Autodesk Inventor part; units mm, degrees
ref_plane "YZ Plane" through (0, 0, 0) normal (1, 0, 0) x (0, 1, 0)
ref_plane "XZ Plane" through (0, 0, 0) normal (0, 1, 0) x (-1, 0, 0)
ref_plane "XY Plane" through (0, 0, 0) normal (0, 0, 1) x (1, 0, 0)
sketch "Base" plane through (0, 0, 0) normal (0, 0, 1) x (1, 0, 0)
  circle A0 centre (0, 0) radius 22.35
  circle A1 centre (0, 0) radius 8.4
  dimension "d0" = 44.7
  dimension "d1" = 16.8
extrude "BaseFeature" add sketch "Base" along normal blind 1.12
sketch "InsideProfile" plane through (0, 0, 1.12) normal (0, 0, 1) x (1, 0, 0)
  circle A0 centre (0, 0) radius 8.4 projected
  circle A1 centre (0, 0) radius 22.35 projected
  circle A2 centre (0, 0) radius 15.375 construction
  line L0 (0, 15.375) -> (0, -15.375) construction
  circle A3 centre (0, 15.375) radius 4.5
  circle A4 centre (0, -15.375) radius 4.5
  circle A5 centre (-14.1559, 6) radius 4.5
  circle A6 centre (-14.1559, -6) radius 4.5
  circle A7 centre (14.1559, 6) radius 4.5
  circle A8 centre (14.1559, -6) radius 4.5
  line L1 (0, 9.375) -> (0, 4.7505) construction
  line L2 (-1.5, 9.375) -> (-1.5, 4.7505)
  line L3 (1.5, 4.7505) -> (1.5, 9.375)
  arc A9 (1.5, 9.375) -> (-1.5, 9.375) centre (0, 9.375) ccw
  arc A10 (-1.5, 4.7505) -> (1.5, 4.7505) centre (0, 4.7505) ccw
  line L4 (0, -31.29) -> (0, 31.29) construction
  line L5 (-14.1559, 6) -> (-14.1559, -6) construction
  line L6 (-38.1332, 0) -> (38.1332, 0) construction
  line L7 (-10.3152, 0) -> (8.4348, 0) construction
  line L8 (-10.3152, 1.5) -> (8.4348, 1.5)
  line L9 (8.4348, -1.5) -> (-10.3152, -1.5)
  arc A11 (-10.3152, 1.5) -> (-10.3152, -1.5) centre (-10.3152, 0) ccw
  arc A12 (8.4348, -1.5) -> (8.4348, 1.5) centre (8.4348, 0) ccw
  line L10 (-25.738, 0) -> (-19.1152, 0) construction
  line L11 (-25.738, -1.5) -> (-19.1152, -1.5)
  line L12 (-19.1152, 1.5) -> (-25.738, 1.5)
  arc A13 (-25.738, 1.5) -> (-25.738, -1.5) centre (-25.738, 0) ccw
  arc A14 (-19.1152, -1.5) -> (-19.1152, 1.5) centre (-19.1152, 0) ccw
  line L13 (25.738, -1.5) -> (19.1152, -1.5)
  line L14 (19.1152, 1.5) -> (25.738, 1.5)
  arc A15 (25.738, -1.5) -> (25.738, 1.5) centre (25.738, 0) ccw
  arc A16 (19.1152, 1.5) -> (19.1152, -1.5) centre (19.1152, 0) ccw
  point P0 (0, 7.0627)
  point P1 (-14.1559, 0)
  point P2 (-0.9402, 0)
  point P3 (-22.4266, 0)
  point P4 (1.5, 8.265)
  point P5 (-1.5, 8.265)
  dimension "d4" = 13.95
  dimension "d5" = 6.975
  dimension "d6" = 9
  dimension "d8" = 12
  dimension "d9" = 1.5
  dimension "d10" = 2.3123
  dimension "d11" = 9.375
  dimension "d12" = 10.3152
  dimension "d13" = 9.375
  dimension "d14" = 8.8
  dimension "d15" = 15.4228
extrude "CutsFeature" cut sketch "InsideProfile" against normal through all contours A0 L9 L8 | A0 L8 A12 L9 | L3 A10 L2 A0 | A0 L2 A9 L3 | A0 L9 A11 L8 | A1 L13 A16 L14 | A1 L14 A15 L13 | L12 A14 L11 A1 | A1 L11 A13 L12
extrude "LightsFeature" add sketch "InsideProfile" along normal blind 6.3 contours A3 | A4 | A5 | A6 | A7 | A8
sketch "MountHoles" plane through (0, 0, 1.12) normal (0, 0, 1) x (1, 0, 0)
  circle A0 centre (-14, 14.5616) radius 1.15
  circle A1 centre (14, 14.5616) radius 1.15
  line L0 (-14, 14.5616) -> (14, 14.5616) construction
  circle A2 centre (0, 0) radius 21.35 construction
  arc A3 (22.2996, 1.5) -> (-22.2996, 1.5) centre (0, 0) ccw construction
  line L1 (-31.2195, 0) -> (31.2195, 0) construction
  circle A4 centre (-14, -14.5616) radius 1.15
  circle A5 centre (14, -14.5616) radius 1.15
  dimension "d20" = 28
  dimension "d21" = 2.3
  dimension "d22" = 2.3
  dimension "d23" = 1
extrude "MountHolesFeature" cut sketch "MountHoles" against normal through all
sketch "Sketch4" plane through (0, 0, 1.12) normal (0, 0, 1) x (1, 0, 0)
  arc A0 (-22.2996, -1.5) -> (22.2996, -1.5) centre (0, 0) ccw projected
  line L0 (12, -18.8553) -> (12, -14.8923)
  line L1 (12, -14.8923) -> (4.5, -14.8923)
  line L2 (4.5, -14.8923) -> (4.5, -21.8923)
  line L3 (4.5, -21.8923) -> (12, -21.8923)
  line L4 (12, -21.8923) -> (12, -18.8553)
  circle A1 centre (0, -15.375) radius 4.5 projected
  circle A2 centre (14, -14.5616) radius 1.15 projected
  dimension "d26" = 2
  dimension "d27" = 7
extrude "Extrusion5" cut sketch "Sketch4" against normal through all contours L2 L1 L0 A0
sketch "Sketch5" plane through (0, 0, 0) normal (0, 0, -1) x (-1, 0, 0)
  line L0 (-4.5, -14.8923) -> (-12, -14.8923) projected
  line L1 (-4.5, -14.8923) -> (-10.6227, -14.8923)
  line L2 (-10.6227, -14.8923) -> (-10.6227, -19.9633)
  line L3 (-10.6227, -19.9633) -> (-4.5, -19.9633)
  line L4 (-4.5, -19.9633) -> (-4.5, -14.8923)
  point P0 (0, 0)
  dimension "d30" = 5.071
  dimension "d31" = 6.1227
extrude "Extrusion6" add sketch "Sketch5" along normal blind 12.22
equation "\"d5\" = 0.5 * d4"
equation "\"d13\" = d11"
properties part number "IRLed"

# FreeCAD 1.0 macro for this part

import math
import FreeCAD as App
import Part
import Sketcher

V = App.Vector

doc = App.newDocument("Part")
body = doc.addObject("PartDesign::Body", "Body")
body.AllowCompound = True

# Sketch on XY plane
sketch1 = doc.addObject("Sketcher::SketchObject", "Sketch")
body.addObject(sketch1)
sketch1.AttachmentSupport = (doc.XY_Plane, [""])
sketch1.MapMode = "FlatFace"
sketch1.addGeometry([
    Part.Circle(V(0, 0, 0), V(0, 0, 1), 22),
    Part.Circle(V(0, 0, 0), V(0, 0, 1), 8),
], False)
sketch1.addConstraint([
    Sketcher.Constraint("Coincident", 0, 3, -1, 1),
    Sketcher.Constraint("Coincident", 1, 3, -1, 1),
    Sketcher.Constraint("Diameter", 0, 44.7),
    Sketcher.Constraint("Diameter", 1, 16.8),
])
pad1 = doc.addObject("PartDesign::Pad", "Pad")
body.addObject(pad1)
pad1.Profile = sketch1
pad1.Length = 1.12

# Sketch on XY plane
sketch2 = doc.addObject("Sketcher::SketchObject", "Sketch001")
body.addObject(sketch2)
sketch2.AttachmentSupport = (doc.XY_Plane, [""])
sketch2.MapMode = "FlatFace"
sketch2.AttachmentOffset = App.Placement(V(0, 0, 1.12), App.Rotation())
sketch2.addGeometry([
    Part.ArcOfCircle(Part.Circle(V(8.4, 0, 0), V(0, 0, 1), 1.5), math.radians(-90), math.radians(90)),  # 0
    Part.LineSegment(V(8.4, 1.5, 0), V(-10.3, 1.5, 0)),  # 1
    Part.ArcOfCircle(Part.Circle(V(-10.3, 0, 0), V(0, 0, 1), 1.5), math.radians(90), math.radians(270)),  # 2
    Part.LineSegment(V(-10.3, -1.5, 0), V(8.4, -1.5, 0)),  # 3
    Part.LineSegment(V(1.5, 4.8, 0), V(1.5, 9.4, 0)),  # 4
    Part.ArcOfCircle(Part.Circle(V(0, 9.4, 0), V(0, 0, 1), 1.5), math.radians(0), math.radians(180)),  # 5
    Part.LineSegment(V(-1.5, 9.4, 0), V(-1.5, 4.8, 0)),  # 6
    Part.ArcOfCircle(Part.Circle(V(0, 4.8, 0), V(0, 0, 1), 1.5), math.radians(180), math.radians(360)),  # 7
    Part.LineSegment(V(19.1, -1.5, 0), V(25.7, -1.5, 0)),  # 8
    Part.ArcOfCircle(Part.Circle(V(25.7, 0, 0), V(0, 0, 1), 1.5), math.radians(-90), math.radians(90)),  # 9
    Part.LineSegment(V(25.7, 1.5, 0), V(19.1, 1.5, 0)),  # 10
    Part.ArcOfCircle(Part.Circle(V(19.1, 0, 0), V(0, 0, 1), 1.5), math.radians(90), math.radians(270)),  # 11
    Part.LineSegment(V(-19.1, 1.5, 0), V(-25.7, 1.5, 0)),  # 12
    Part.ArcOfCircle(Part.Circle(V(-25.7, 0, 0), V(0, 0, 1), 1.5), math.radians(90), math.radians(270)),  # 13
    Part.LineSegment(V(-25.7, -1.5, 0), V(-19.1, -1.5, 0)),  # 14
    Part.ArcOfCircle(Part.Circle(V(-19.1, 0, 0), V(0, 0, 1), 1.5), math.radians(-90), math.radians(90)),  # 15
], False)
sketch2.addConstraint([
    Sketcher.Constraint("Tangent", 0, 2, 1, 1),
    Sketcher.Constraint("Tangent", 1, 2, 2, 1),
    Sketcher.Constraint("Tangent", 2, 2, 3, 1),
    Sketcher.Constraint("Tangent", 3, 2, 0, 1),
    Sketcher.Constraint("Tangent", 4, 2, 5, 1),
    Sketcher.Constraint("Tangent", 5, 2, 6, 1),
    Sketcher.Constraint("Tangent", 6, 2, 7, 1),
    Sketcher.Constraint("Tangent", 7, 2, 4, 1),
    Sketcher.Constraint("Tangent", 8, 2, 9, 1),
    Sketcher.Constraint("Tangent", 9, 2, 10, 1),
    Sketcher.Constraint("Tangent", 10, 2, 11, 1),
    Sketcher.Constraint("Tangent", 11, 2, 8, 1),
    Sketcher.Constraint("Tangent", 12, 2, 13, 1),
    Sketcher.Constraint("Tangent", 13, 2, 14, 1),
    Sketcher.Constraint("Tangent", 14, 2, 15, 1),
    Sketcher.Constraint("Tangent", 15, 2, 12, 1),
    Sketcher.Constraint("Horizontal", 1),
    Sketcher.Constraint("Horizontal", 3),
    Sketcher.Constraint("Vertical", 4),
    Sketcher.Constraint("Vertical", 6),
    Sketcher.Constraint("Horizontal", 8),
    Sketcher.Constraint("Horizontal", 10),
    Sketcher.Constraint("Horizontal", 12),
    Sketcher.Constraint("Horizontal", 14),
    Sketcher.Constraint("Equal", 2, 5),
    Sketcher.Constraint("Equal", 7, 9),
    Sketcher.Constraint("Equal", 11, 13),
    Sketcher.Constraint("Symmetric", 9, 3, 13, 3, -1, 1),
    Sketcher.Constraint("Symmetric", 11, 3, 15, 3, -2),
    Sketcher.Constraint("PointOnObject", 0, 3, -1),
    Sketcher.Constraint("PointOnObject", 5, 3, -2),
    Sketcher.Constraint("Radius", 0, 1.5),
    Sketcher.Constraint("DistanceX", 15, 3, 2, 3, 8.8),
    Sketcher.Constraint("DistanceY", -1, 1, 5, 3, 9.375),
    Sketcher.Constraint("DistanceX", 1, 2, 1, 1, 18.75),
    Sketcher.Constraint("DistanceX", 2, 3, -1, 1, 10.3152),
    Sketcher.Constraint("DistanceX", 13, 3, 2, 3, 15.4228),
    Sketcher.Constraint("DistanceY", 4, 1, 4, 2, 4.6245),
])
pocket1 = doc.addObject("PartDesign::Pocket", "Pocket")
body.addObject(pocket1)
pocket1.Profile = sketch2
pocket1.Type = "ThroughAll"

# Sketch on XY plane
sketch3 = doc.addObject("Sketcher::SketchObject", "Sketch002")
body.addObject(sketch3)
sketch3.AttachmentSupport = (doc.XY_Plane, [""])
sketch3.MapMode = "FlatFace"
sketch3.AttachmentOffset = App.Placement(V(0, 0, 1.12), App.Rotation())
sketch3.addGeometry([
    Part.Circle(V(0, 15.4, 0), V(0, 0, 1), 4.5),  # 0
    Part.Circle(V(0, -15.4, 0), V(0, 0, 1), 4.5),  # 1
    Part.Circle(V(-14.2, 6, 0), V(0, 0, 1), 4.5),  # 2
    Part.Circle(V(-14.2, -6, 0), V(0, 0, 1), 4.5),  # 3
    Part.Circle(V(14.2, 6, 0), V(0, 0, 1), 4.5),  # 4
    Part.Circle(V(14.2, -6, 0), V(0, 0, 1), 4.5),  # 5
], False)
sketch3.addConstraint([
    Sketcher.Constraint("Equal", 0, 1),
    Sketcher.Constraint("Equal", 1, 2),
    Sketcher.Constraint("Equal", 2, 3),
    Sketcher.Constraint("Equal", 3, 4),
    Sketcher.Constraint("Equal", 4, 5),
    Sketcher.Constraint("Symmetric", 0, 3, 1, 3, -1, 1),
    Sketcher.Constraint("Symmetric", 3, 3, 4, 3, -1, 1),
    Sketcher.Constraint("Symmetric", 2, 3, 5, 3, -1, 1),
    Sketcher.Constraint("Symmetric", 2, 3, 4, 3, -2),
    Sketcher.Constraint("PointOnObject", 0, 3, -2),
    Sketcher.Constraint("Diameter", 0, 9.0),
    Sketcher.Constraint("DistanceY", 3, 3, 2, 3, 12.0),
    Sketcher.Constraint("DistanceY", 2, 3, 0, 3, 9.375),
    Sketcher.Constraint("DistanceX", 2, 3, -1, 1, 14.156),
])
pad2 = doc.addObject("PartDesign::Pad", "Pad001")
body.addObject(pad2)
pad2.Profile = sketch3
pad2.Length = 6.3

# Sketch on XY plane
sketch4 = doc.addObject("Sketcher::SketchObject", "Sketch003")
body.addObject(sketch4)
sketch4.AttachmentSupport = (doc.XY_Plane, [""])
sketch4.MapMode = "FlatFace"
sketch4.AttachmentOffset = App.Placement(V(0, 0, 1.12), App.Rotation())
sketch4.addGeometry([
    Part.Circle(V(-14, 14.6, 0), V(0, 0, 1), 1.1),
    Part.Circle(V(14, 14.6, 0), V(0, 0, 1), 1.1),
    Part.Circle(V(-14, -14.6, 0), V(0, 0, 1), 1.1),
    Part.Circle(V(14, -14.6, 0), V(0, 0, 1), 1.1),
], False)
sketch4.addConstraint([
    Sketcher.Constraint("Equal", 0, 1),
    Sketcher.Constraint("Equal", 1, 2),
    Sketcher.Constraint("Equal", 2, 3),
    Sketcher.Constraint("Symmetric", 1, 3, 2, 3, -1, 1),
    Sketcher.Constraint("Symmetric", 0, 3, 3, 3, -1, 1),
    Sketcher.Constraint("Symmetric", 0, 3, 1, 3, -2),
    Sketcher.Constraint("Diameter", 0, 2.3),
    Sketcher.Constraint("DistanceX", 0, 3, 1, 3, 28.0),
    Sketcher.Constraint("DistanceY", -1, 1, 0, 3, 14.5616),
])
pocket2 = doc.addObject("PartDesign::Pocket", "Pocket001")
body.addObject(pocket2)
pocket2.Profile = sketch4
pocket2.Type = "ThroughAll"

# Sketch on XY plane
sketch5 = doc.addObject("Sketcher::SketchObject", "Sketch004")
body.addObject(sketch5)
sketch5.AttachmentSupport = (doc.XY_Plane, [""])
sketch5.MapMode = "FlatFace"
sketch5.AttachmentOffset = App.Placement(V(0, 0, 1.12), App.Rotation())
sketch5.addGeometry([
    Part.LineSegment(V(4.5, -14.9, 0), V(4.5, -21.9, 0)),
    Part.ArcOfCircle(Part.Circle(V(0, 0, 0), V(0, 0, 1), 22.3), math.radians(-78), math.radians(-58)),
    Part.LineSegment(V(12, -18.9, 0), V(12, -14.9, 0)),
    Part.LineSegment(V(12, -14.9, 0), V(4.5, -14.9, 0)),
], False)
sketch5.addConstraint([
    Sketcher.Constraint("Coincident", 0, 2, 1, 1),
    Sketcher.Constraint("Coincident", 1, 2, 2, 1),
    Sketcher.Constraint("Coincident", 2, 2, 3, 1),
    Sketcher.Constraint("Coincident", 3, 2, 0, 1),
    Sketcher.Constraint("Vertical", 0),
    Sketcher.Constraint("Vertical", 2),
    Sketcher.Constraint("Horizontal", 3),
    Sketcher.Constraint("Coincident", 1, 3, -1, 1),
    Sketcher.Constraint("DistanceY", 0, 2, 0, 1, 7.0),
    Sketcher.Constraint("Radius", 1, 22.35),
    Sketcher.Constraint("DistanceX", 3, 2, 3, 1, 7.5),
    Sketcher.Constraint("DistanceX", -1, 1, 1, 2, 12.0),
])
pocket3 = doc.addObject("PartDesign::Pocket", "Pocket002")
body.addObject(pocket3)
pocket3.Profile = sketch5
pocket3.Type = "ThroughAll"

# Sketch on XY plane
sketch6 = doc.addObject("Sketcher::SketchObject", "Sketch005")
body.addObject(sketch6)
sketch6.AttachmentSupport = (doc.XY_Plane, [""])
sketch6.MapMode = "FlatFace"
sketch6.addGeometry([
    Part.LineSegment(V(4, -20, 0), V(4, -15, 0)),
    Part.LineSegment(V(4, -15, 0), V(11, -15, 0)),
    Part.LineSegment(V(11, -15, 0), V(11, -20, 0)),
    Part.LineSegment(V(11, -20, 0), V(4, -20, 0)),
], False)
sketch6.addConstraint([
    Sketcher.Constraint("Coincident", 0, 2, 1, 1),
    Sketcher.Constraint("Coincident", 1, 2, 2, 1),
    Sketcher.Constraint("Coincident", 2, 2, 3, 1),
    Sketcher.Constraint("Coincident", 3, 2, 0, 1),
    Sketcher.Constraint("Vertical", 0),
    Sketcher.Constraint("Horizontal", 1),
    Sketcher.Constraint("Vertical", 2),
    Sketcher.Constraint("Horizontal", 3),
    Sketcher.Constraint("DistanceY", 0, 1, 0, 2, 5.071),
    Sketcher.Constraint("DistanceX", 1, 1, 1, 2, 6.1227),
    Sketcher.Constraint("DistanceX", -1, 1, 0, 2, 4.5),
    Sketcher.Constraint("DistanceY", 0, 2, -1, 1, 14.8923),
])
pad3 = doc.addObject("PartDesign::Pad", "Pad002")
body.addObject(pad3)
pad3.Profile = sketch6
pad3.Length = 12.22
pad3.Reversed = True

doc.recompute()
